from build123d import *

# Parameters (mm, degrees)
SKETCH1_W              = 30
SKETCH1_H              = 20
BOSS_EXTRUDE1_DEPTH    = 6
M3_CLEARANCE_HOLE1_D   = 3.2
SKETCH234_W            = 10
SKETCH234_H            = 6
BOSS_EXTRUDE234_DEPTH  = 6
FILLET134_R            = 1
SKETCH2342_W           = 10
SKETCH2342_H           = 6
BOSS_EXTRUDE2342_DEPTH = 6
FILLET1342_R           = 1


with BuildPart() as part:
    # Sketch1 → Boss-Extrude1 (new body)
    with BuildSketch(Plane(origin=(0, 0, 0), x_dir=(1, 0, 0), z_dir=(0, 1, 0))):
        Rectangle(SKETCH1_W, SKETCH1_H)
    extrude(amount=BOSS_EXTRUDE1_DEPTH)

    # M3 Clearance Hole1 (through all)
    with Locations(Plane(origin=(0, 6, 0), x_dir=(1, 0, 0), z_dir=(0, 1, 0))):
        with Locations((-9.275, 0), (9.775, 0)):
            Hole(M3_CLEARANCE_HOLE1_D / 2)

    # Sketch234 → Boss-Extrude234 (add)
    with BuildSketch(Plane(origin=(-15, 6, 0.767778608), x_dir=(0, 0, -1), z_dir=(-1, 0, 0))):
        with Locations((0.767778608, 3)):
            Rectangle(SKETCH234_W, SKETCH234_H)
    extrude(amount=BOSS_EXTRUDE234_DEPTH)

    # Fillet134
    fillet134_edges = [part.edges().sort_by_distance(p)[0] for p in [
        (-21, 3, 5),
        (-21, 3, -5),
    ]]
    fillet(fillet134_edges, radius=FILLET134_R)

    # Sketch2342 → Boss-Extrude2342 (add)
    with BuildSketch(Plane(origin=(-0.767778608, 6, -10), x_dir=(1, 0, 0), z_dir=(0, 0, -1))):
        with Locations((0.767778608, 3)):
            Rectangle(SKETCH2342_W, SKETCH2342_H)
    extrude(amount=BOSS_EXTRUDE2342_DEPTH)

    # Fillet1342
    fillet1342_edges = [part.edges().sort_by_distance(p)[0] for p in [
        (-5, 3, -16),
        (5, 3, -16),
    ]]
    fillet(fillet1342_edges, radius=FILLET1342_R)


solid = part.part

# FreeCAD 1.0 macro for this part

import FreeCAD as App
import Part
import Sketcher
from FreeCAD import Vector
Q = App.Units.Quantity


def edges_at(feature, points):
    """Names of the edges that pass closest to the given points."""
    edges = feature.Shape.Edges
    near = lambda p: min(range(len(edges)), key=lambda i: edges[i].distToShape(Part.Vertex(*p))[0])
    return sorted({f"Edge{near(p) + 1}" for p in points})


def add_polygon(sketch, points):
    """Adds a closed chain of lines whose ends are joined by coincident constraints."""
    first, n = sketch.GeometryCount, len(points)
    for a, b in zip(points, points[1:] + points[:1]):
        sketch.addGeometry(Part.LineSegment(App.Vector(*a, 0), App.Vector(*b, 0)), False)
    for i in range(n):
        sketch.addConstraint(Sketcher.Constraint("Coincident", first + i, 2, first + (i + 1) % n, 1))

doc = App.newDocument("Part")
body = doc.addObject("PartDesign::Body", "Body")

# Sketch on XZ plane
sketch1 = body.newObject("Sketcher::SketchObject", "Sketch")
sketch1.AttachmentSupport = (doc.getObject("XZ_Plane"), [""])
sketch1.MapMode = "FlatFace"
add_polygon(sketch1, [(-15, -10), (-15, 10), (15, 10), (15, -10)])  # lines 0-3
sketch1.addConstraint(Sketcher.Constraint("Vertical", 0))
sketch1.addConstraint(Sketcher.Constraint("Horizontal", 1))
sketch1.addConstraint(Sketcher.Constraint("Vertical", 2))
sketch1.addConstraint(Sketcher.Constraint("Horizontal", 3))
sketch1.addConstraint(Sketcher.Constraint("Symmetric", 0, 2, 2, 2, -1, 1))
sketch1.addConstraint(Sketcher.Constraint("DistanceX", 1, 1, 1, 2, Q("30 mm")))
sketch1.addConstraint(Sketcher.Constraint("DistanceY", 0, 1, 0, 2, Q("20 mm")))
pad1 = body.newObject("PartDesign::Pad", "Pad")
pad1.Profile = sketch1
pad1.Length = 6
pad1.Reversed = True

# Sketch on XZ plane
sketch2 = body.newObject("Sketcher::SketchObject", "Sketch001")
sketch2.AttachmentSupport = (doc.getObject("XZ_Plane"), [""])
sketch2.MapMode = "FlatFace"
sketch2.AttachmentOffset = App.Placement(Vector(0, 0, -6), App.Rotation())
sketch2.addGeometry(Part.Circle(Vector(-9.3, 0, 0), Vector(0, 0, 1), 1.6), False)
sketch2.addGeometry(Part.Circle(Vector(9.8, 0, 0), Vector(0, 0, 1), 1.6), False)
sketch2.addConstraint(Sketcher.Constraint("Equal", 0, 1))
sketch2.addConstraint(Sketcher.Constraint("PointOnObject", 0, 3, -1))
sketch2.addConstraint(Sketcher.Constraint("PointOnObject", 1, 3, -1))
sketch2.addConstraint(Sketcher.Constraint("Diameter", 0, Q("3.2 mm")))
sketch2.addConstraint(Sketcher.Constraint("DistanceX", 0, 3, 1, 3, Q("19.05 mm")))
sketch2.addConstraint(Sketcher.Constraint("DistanceX", 0, 3, -1, 1, Q("9.275 mm")))
doc.recompute()
hole = body.newObject("PartDesign::Hole", "Hole")
hole.Profile = sketch2
hole.ThreadType = "None"
hole.Diameter = 3.2
hole.DepthType = "ThroughAll"
hole.Reversed = True

# Sketch on YZ plane
sketch3 = body.newObject("Sketcher::SketchObject", "Sketch002")
sketch3.AttachmentSupport = (doc.getObject("YZ_Plane"), [""])
sketch3.MapMode = "FlatFace"
sketch3.AttachmentOffset = App.Placement(Vector(0, 0, -15), App.Rotation())
add_polygon(sketch3, [(0, 5), (6, 5), (6, -5), (0, -5)])  # lines 0-3
sketch3.addConstraint(Sketcher.Constraint("Horizontal", 0))
sketch3.addConstraint(Sketcher.Constraint("Vertical", 1))
sketch3.addConstraint(Sketcher.Constraint("Horizontal", 2))
sketch3.addConstraint(Sketcher.Constraint("Vertical", 3))
sketch3.addConstraint(Sketcher.Constraint("Symmetric", 2, 2, 3, 2, -1, 1))
sketch3.addConstraint(Sketcher.Constraint("DistanceX", 0, 1, 0, 2, Q("6 mm")))
sketch3.addConstraint(Sketcher.Constraint("DistanceY", 1, 2, 1, 1, Q("10 mm")))
pad2 = body.newObject("PartDesign::Pad", "Pad001")
pad2.Profile = sketch3
pad2.Length = 6
pad2.Reversed = True
doc.recompute()

fillet = body.newObject("PartDesign::Fillet", "Fillet")
fillet.Base = (pad2, edges_at(pad2, [(-21, 3, 5), (-21, 3, -5)]))
fillet.Radius = 1

# Sketch on XY plane
sketch4 = body.newObject("Sketcher::SketchObject", "Sketch003")
sketch4.AttachmentSupport = (doc.getObject("XY_Plane"), [""])
sketch4.MapMode = "FlatFace"
sketch4.AttachmentOffset = App.Placement(Vector(0, 0, -10), App.Rotation())
add_polygon(sketch4, [(-5, 0), (-5, 6), (5, 6), (5, 0)])  # lines 0-3
sketch4.addConstraint(Sketcher.Constraint("Vertical", 0))
sketch4.addConstraint(Sketcher.Constraint("Horizontal", 1))
sketch4.addConstraint(Sketcher.Constraint("Vertical", 2))
sketch4.addConstraint(Sketcher.Constraint("Horizontal", 3))
sketch4.addConstraint(Sketcher.Constraint("Symmetric", 2, 2, 3, 2, -1, 1))
sketch4.addConstraint(Sketcher.Constraint("DistanceX", 1, 1, 1, 2, Q("10 mm")))
sketch4.addConstraint(Sketcher.Constraint("DistanceY", 0, 1, 0, 2, Q("6 mm")))
pad3 = body.newObject("PartDesign::Pad", "Pad002")
pad3.Profile = sketch4
pad3.Length = 6
pad3.Reversed = True
doc.recompute()

fillet2 = body.newObject("PartDesign::Fillet", "Fillet001")
fillet2.Base = (pad3, edges_at(pad3, [(-5, 3, -16), (5, 3, -16)]))
fillet2.Radius = 1

doc.recompute()
